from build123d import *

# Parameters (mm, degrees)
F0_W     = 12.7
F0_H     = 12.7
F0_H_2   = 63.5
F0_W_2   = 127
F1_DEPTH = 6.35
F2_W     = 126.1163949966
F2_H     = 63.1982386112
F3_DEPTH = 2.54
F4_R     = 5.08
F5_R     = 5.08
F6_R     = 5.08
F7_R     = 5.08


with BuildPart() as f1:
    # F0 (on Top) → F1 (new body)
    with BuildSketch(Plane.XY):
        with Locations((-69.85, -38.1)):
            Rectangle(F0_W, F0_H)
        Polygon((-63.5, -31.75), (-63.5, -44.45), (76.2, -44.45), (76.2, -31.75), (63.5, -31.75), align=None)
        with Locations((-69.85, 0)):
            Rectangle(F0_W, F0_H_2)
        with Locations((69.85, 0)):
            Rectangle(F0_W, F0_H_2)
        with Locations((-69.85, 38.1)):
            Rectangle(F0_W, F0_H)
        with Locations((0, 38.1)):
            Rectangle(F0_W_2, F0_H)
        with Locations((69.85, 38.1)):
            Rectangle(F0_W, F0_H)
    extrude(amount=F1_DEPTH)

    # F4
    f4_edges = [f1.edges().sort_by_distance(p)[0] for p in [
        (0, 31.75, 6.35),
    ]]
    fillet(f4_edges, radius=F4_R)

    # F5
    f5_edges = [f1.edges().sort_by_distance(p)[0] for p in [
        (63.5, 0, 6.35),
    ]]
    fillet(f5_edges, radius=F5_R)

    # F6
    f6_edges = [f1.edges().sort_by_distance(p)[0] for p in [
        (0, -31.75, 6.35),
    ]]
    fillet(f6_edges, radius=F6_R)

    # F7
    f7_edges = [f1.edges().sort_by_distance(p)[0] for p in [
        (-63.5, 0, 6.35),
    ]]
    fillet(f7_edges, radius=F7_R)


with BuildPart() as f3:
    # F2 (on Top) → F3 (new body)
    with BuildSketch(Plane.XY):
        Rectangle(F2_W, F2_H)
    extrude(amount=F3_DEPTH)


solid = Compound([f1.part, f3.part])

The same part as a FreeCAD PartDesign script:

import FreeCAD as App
import Part
import Sketcher

V = App.Vector
Q = App.Units.Quantity


def edges_at(feature, points):
    """Names of the edges that pass closest to the given points."""
    edges = feature.Shape.Edges
    near = lambda p: min(range(len(edges)), key=lambda i: edges[i].distToShape(Part.Vertex(*p))[0])
    return sorted({f"Edge{near(p) + 1}" for p in points})

doc = App.newDocument("Part")
body = doc.addObject("PartDesign::Body", "Body")

# Sketch on XY plane
sketch1 = body.newObject("Sketcher::SketchObject", "Sketch")
sketch1.AttachmentSupport = (doc.getObject("XY_Plane"), [""])
sketch1.MapMode = "FlatFace"
sketch1.addGeometry(Part.LineSegment(V(76, -44, 0), V(76, 44, 0)), False)
sketch1.addGeometry(Part.LineSegment(V(76, 44, 0), V(-76, 44, 0)), False)
sketch1.addGeometry(Part.LineSegment(V(-76, 44, 0), V(-76, -44, 0)), False)
sketch1.addGeometry(Part.LineSegment(V(-76, -44, 0), V(76, -44, 0)), False)
sketch1.addGeometry(Part.LineSegment(V(64, 32, 0), V(64, -32, 0)), False)
sketch1.addGeometry(Part.LineSegment(V(64, -32, 0), V(-64, -32, 0)), False)
sketch1.addGeometry(Part.LineSegment(V(-64, -32, 0), V(-64, 32, 0)), False)
sketch1.addGeometry(Part.LineSegment(V(-64, 32, 0), V(64, 32, 0)), False)
sketch1.addConstraint(Sketcher.Constraint("Coincident", 0, 2, 1, 1))
sketch1.addConstraint(Sketcher.Constraint("Coincident", 1, 2, 2, 1))
sketch1.addConstraint(Sketcher.Constraint("Coincident", 2, 2, 3, 1))
sketch1.addConstraint(Sketcher.Constraint("Coincident", 3, 2, 0, 1))
sketch1.addConstraint(Sketcher.Constraint("Coincident", 4, 2, 5, 1))
sketch1.addConstraint(Sketcher.Constraint("Coincident", 5, 2, 6, 1))
sketch1.addConstraint(Sketcher.Constraint("Coincident", 6, 2, 7, 1))
sketch1.addConstraint(Sketcher.Constraint("Coincident", 7, 2, 4, 1))
sketch1.addConstraint(Sketcher.Constraint("Vertical", 0))
sketch1.addConstraint(Sketcher.Constraint("Horizontal", 1))
sketch1.addConstraint(Sketcher.Constraint("Vertical", 2))
sketch1.addConstraint(Sketcher.Constraint("Horizontal", 3))
sketch1.addConstraint(Sketcher.Constraint("Vertical", 4))
sketch1.addConstraint(Sketcher.Constraint("Horizontal", 5))
sketch1.addConstraint(Sketcher.Constraint("Vertical", 6))
sketch1.addConstraint(Sketcher.Constraint("Horizontal", 7))
sketch1.addConstraint(Sketcher.Constraint("Symmetric", 0, 2, 2, 2, -1, 1))
sketch1.addConstraint(Sketcher.Constraint("Symmetric", 4, 2, 6, 2, -1, 1))
sketch1.addConstraint(Sketcher.Constraint("DistanceX", 1, 2, 1, 1, Q("6 in")))
sketch1.addConstraint(Sketcher.Constraint("DistanceX", 5, 2, 5, 1, Q("5 in")))
sketch1.addConstraint(Sketcher.Constraint("DistanceY", 0, 1, 0, 2, Q("3.5 in")))
sketch1.addConstraint(Sketcher.Constraint("DistanceY", 4, 2, 4, 1, Q("2.5 in")))
pad1 = body.newObject("PartDesign::Pad", "Pad")
pad1.Profile = sketch1
pad1.Length = Q("0.25 in")
doc.recompute()

fillet = body.newObject("PartDesign::Fillet", "Fillet")
fillet.Base = (pad1, edges_at(pad1, [(0, 31.75, 6.35)]))
fillet.Radius = Q("0.2 in")
doc.recompute()

fillet2 = body.newObject("PartDesign::Fillet", "Fillet001")
fillet2.Base = (fillet, edges_at(fillet, [(63.5, 2.54, 6.35)]))
fillet2.Radius = Q("0.2 in")
doc.recompute()

fillet3 = body.newObject("PartDesign::Fillet", "Fillet002")
fillet3.Base = (fillet2, edges_at(fillet2, [(2.54, -31.75, 6.35)]))
fillet3.Radius = Q("0.2 in")
doc.recompute()

fillet4 = body.newObject("PartDesign::Fillet", "Fillet003")
fillet4.Base = (fillet3, edges_at(fillet3, [(-63.5, 0, 6.35)]))
fillet4.Radius = Q("0.2 in")
body2 = doc.addObject("PartDesign::Body", "Body001")

# Sketch on XY plane
sketch2 = body2.newObject("Sketcher::SketchObject", "Sketch001")
sketch2.AttachmentSupport = (doc.getObject("XY_Plane001"), [""])
sketch2.MapMode = "FlatFace"
sketch2.addGeometry(Part.LineSegment(V(-63, 32, 0), V(-63, -32, 0)), False)
sketch2.addGeometry(Part.LineSegment(V(-63, -32, 0), V(63, -32, 0)), False)
sketch2.addGeometry(Part.LineSegment(V(63, -32, 0), V(63, 32, 0)), False)
sketch2.addGeometry(Part.LineSegment(V(63, 32, 0), V(-63, 32, 0)), False)
sketch2.addConstraint(Sketcher.Constraint("Coincident", 0, 2, 1, 1))
sketch2.addConstraint(Sketcher.Constraint("Coincident", 1, 2, 2, 1))
sketch2.addConstraint(Sketcher.Constraint("Coincident", 2, 2, 3, 1))
sketch2.addConstraint(Sketcher.Constraint("Coincident", 3, 2, 0, 1))
sketch2.addConstraint(Sketcher.Constraint("Vertical", 0))
sketch2.addConstraint(Sketcher.Constraint("Horizontal", 1))
sketch2.addConstraint(Sketcher.Constraint("Vertical", 2))
sketch2.addConstraint(Sketcher.Constraint("Horizontal", 3))
sketch2.addConstraint(Sketcher.Constraint("Symmetric", 0, 2, 2, 2, -1, 1))
sketch2.addConstraint(Sketcher.Constraint("DistanceY", 0, 2, 0, 1, Q("63.198239 mm")))
sketch2.addConstraint(Sketcher.Constraint("DistanceX", 1, 1, 1, 2, Q("126.116395 mm")))
pad2 = body2.newObject("PartDesign::Pad", "Pad001")
pad2.Profile = sketch2
pad2.Length = Q("0.1 in")

doc.recompute()
